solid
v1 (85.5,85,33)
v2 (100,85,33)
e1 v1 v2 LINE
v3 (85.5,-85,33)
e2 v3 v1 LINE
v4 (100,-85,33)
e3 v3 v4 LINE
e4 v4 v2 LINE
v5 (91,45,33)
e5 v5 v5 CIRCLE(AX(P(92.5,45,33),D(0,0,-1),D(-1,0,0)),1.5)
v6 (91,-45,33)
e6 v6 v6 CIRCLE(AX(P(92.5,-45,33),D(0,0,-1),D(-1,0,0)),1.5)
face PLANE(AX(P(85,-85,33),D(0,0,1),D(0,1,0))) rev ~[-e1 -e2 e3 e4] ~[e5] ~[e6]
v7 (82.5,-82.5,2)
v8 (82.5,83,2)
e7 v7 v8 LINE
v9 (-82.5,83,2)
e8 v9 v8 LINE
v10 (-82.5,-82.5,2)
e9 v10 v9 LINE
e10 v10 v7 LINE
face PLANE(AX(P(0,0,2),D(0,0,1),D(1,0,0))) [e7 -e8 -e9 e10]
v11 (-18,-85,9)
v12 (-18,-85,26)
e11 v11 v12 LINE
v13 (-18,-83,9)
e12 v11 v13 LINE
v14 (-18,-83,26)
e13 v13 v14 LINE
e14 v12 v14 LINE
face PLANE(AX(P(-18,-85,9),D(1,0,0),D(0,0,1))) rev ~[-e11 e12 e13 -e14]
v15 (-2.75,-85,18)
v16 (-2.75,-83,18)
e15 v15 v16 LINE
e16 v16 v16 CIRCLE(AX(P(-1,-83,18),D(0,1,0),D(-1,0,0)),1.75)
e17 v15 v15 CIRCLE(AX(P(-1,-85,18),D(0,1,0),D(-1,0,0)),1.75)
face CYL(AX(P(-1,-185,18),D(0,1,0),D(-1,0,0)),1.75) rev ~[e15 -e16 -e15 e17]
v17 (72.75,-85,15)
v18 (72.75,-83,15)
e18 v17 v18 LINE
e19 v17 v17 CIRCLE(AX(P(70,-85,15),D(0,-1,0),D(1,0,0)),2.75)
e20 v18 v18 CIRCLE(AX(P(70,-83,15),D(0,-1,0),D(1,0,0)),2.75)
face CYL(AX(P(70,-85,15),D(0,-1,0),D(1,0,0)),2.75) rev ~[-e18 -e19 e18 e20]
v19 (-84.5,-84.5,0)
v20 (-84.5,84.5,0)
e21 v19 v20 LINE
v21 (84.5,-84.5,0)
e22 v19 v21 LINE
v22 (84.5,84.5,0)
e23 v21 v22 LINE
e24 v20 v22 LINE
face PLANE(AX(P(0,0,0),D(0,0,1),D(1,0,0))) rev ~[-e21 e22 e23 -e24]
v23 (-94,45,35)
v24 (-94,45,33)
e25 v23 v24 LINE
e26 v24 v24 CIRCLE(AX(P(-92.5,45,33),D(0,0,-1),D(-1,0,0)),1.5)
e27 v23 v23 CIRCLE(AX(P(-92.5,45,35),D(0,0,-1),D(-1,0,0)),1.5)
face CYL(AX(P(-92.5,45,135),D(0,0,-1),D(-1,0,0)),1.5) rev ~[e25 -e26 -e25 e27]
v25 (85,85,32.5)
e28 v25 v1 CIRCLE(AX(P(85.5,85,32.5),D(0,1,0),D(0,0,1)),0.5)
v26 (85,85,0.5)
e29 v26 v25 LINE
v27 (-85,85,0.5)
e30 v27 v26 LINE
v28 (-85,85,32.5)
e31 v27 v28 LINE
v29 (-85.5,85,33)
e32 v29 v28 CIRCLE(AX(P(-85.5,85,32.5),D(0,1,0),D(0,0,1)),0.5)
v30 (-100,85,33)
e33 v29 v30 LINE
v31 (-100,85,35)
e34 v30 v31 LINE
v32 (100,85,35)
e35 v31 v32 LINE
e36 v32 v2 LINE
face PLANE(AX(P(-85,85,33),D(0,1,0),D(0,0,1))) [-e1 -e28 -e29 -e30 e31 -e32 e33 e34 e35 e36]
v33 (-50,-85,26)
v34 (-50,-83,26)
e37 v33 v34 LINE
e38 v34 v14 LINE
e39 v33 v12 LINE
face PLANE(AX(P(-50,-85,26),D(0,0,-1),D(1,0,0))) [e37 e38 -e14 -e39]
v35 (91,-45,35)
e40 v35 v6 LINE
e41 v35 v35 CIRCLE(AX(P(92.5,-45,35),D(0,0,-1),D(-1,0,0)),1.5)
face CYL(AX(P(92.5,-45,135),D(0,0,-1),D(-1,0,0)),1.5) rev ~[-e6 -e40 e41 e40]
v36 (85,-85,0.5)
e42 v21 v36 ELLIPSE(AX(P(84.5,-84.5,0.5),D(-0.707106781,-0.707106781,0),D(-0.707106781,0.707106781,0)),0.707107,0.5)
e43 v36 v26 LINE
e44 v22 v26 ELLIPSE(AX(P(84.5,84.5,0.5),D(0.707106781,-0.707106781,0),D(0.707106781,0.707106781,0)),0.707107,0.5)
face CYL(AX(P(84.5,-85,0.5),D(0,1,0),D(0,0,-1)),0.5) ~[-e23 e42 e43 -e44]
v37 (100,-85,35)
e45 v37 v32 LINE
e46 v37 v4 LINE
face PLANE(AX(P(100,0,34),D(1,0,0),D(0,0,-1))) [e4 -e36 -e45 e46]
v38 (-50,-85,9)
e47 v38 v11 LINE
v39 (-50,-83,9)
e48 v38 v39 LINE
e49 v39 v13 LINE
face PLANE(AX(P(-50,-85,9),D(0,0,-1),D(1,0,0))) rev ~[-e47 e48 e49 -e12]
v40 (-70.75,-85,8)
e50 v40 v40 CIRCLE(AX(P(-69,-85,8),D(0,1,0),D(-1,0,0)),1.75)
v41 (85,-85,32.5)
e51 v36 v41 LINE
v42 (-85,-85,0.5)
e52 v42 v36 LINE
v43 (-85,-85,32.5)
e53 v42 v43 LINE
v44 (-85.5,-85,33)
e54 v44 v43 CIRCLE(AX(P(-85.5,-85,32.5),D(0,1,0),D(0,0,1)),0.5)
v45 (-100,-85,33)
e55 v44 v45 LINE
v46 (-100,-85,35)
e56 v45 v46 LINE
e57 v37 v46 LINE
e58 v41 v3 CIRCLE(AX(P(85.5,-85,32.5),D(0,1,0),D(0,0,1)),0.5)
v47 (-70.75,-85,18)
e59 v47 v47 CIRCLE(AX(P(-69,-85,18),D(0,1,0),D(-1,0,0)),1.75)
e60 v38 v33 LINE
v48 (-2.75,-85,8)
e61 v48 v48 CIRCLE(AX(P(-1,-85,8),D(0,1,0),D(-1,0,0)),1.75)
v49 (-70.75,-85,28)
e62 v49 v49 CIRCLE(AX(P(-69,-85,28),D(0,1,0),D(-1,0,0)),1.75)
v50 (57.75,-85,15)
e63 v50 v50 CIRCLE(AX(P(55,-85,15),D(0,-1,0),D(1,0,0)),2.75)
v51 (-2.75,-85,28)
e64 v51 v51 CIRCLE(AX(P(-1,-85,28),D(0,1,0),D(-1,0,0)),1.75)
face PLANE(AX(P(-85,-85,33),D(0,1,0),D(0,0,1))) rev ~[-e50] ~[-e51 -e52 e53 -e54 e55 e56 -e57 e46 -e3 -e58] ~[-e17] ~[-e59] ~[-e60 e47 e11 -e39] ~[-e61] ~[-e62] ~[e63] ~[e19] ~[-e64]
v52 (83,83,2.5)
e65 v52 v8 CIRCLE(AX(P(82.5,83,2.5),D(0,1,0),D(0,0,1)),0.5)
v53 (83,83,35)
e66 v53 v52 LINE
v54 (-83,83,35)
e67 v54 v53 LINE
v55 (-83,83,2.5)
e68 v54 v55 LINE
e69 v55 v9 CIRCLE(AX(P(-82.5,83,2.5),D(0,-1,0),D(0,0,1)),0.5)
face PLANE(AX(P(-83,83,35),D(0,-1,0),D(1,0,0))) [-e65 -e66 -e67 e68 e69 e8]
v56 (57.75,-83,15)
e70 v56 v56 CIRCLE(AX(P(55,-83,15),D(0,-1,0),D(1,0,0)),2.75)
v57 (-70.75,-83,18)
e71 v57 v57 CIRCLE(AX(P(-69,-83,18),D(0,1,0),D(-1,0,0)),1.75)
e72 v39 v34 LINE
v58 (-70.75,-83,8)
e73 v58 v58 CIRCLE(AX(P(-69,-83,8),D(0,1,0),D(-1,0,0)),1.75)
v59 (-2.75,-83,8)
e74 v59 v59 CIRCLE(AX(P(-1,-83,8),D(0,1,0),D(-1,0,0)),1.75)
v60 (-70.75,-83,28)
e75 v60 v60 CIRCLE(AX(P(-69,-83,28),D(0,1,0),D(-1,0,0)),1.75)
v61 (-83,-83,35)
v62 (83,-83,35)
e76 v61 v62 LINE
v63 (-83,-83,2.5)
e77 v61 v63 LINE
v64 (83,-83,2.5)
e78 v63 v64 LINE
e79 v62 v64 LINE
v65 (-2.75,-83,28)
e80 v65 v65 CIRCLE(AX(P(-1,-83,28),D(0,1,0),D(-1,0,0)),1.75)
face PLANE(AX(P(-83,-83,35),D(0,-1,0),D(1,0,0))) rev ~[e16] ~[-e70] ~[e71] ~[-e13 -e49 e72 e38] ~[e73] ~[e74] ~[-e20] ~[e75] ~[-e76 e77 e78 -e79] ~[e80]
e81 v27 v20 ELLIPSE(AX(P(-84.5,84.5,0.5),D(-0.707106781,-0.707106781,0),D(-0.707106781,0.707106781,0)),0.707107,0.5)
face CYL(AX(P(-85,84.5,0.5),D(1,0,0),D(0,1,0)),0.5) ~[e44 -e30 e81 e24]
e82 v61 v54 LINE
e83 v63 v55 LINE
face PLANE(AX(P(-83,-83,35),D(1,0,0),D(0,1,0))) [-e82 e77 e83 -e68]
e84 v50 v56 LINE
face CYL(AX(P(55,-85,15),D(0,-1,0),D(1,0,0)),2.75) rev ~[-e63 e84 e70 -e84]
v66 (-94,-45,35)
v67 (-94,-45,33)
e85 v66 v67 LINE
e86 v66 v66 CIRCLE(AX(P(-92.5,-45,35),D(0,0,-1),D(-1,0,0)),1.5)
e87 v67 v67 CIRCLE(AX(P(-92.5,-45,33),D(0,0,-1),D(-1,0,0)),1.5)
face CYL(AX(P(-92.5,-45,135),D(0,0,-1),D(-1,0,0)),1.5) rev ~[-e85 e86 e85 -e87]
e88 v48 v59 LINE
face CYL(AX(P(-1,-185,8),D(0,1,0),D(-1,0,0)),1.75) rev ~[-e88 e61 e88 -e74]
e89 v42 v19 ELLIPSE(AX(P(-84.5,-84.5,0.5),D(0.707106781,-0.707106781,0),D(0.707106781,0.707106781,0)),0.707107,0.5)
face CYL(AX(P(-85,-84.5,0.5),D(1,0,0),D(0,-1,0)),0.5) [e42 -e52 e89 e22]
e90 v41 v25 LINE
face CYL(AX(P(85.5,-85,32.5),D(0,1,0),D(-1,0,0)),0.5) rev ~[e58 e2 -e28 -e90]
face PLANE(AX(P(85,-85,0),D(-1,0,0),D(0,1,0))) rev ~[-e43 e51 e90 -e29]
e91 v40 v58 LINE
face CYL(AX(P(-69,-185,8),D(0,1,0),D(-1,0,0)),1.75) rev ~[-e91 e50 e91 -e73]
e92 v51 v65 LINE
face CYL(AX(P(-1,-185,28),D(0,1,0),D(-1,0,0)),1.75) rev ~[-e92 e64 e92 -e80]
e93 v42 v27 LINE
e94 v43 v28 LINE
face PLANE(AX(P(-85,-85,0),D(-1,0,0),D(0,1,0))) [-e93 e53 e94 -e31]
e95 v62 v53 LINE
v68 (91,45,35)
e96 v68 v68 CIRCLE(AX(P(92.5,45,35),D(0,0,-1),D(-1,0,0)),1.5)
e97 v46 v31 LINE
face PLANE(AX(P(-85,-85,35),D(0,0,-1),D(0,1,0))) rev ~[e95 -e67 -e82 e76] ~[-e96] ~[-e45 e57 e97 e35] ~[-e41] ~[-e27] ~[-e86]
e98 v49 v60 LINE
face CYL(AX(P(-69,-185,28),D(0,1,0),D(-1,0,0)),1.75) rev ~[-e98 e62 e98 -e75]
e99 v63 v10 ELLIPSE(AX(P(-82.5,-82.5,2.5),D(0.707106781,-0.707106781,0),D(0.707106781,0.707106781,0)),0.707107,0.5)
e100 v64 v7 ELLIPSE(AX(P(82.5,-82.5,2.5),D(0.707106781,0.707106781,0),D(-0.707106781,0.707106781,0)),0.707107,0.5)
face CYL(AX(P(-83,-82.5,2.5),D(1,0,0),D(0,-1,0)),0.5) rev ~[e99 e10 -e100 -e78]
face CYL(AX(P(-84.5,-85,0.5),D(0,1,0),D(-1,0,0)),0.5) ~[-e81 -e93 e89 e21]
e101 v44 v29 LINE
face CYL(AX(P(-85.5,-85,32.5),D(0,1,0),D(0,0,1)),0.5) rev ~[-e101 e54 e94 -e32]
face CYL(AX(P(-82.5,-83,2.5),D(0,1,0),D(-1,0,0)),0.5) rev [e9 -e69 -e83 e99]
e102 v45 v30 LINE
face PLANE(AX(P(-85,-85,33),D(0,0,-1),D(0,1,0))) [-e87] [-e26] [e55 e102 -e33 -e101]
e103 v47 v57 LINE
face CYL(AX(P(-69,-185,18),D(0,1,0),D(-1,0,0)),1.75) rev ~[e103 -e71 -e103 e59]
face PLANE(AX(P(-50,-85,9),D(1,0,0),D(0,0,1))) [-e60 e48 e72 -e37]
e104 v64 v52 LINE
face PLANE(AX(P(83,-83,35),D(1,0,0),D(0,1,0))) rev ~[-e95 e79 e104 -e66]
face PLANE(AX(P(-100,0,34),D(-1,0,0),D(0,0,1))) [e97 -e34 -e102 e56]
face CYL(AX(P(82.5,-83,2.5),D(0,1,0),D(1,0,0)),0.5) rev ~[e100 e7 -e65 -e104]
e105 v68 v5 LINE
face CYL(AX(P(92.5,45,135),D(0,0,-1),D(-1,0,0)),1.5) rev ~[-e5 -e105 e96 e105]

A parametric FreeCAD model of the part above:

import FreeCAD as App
import Part
import Sketcher


def edges_at(feature, points):
    """Names of the edges that pass closest to the given points."""
    edges = feature.Shape.Edges
    near = lambda p: min(range(len(edges)), key=lambda i: edges[i].distToShape(Part.Vertex(*p))[0])
    return sorted({f"Edge{near(p) + 1}" for p in points})

doc = App.newDocument("Part")
params = doc.addObject("Spreadsheet::Sheet", "Params")
for row, (alias, value) in enumerate([
    ("sketch1_width", "170 mm"),
    ("pad1_length", "35 mm"),
    ("sketch2_width", "166 mm"),
    ("pocket1_length", "33 mm"),
    ("sketch3_width", "170 mm"),
    ("sketch3_height", "2 mm"),
    ("pad2_length", "15 mm"),
    ("sketch4_width", "170 mm"),
    ("sketch4_height", "2 mm"),
    ("pad3_length", "15 mm"),
    ("sketch5_diameter", "3 mm"),
    ("hole_diameter", "3 mm"),
    ("hole_depth", "100 mm"),
    ("sketch6_diameter", "5.5 mm"),
    ("sketch6_width", "32 mm"),
    ("sketch6_height", "17 mm"),
    ("pocket2_length", "15 mm"),
    ("fillet_radius", "0.5 mm"),
    ("sketch7_diameter", "3.5 mm"),
    ("hole2_diameter", "3.5 mm"),
    ("hole2_depth", "100 mm"),
], start=1):
    params.set(f"A{row}", alias)
    params.set(f"B{row}", "=" + value)
    params.setAlias(f"B{row}", alias)

body = doc.addObject("PartDesign::Body", "Body")

sketch1 = body.newObject("Sketcher::SketchObject", "Sketch")
sketch1.AttachmentSupport = (doc.getObject("XY_Plane"), [""])
sketch1.MapMode = "FlatFace"
sketch1.addGeometry([
    Part.LineSegment(App.Vector(-85, 85, 0), App.Vector(-85, -85, 0)),
    Part.LineSegment(App.Vector(-85, -85, 0), App.Vector(85, -85, 0)),
    Part.LineSegment(App.Vector(85, -85, 0), App.Vector(85, 85, 0)),
    Part.LineSegment(App.Vector(85, 85, 0), App.Vector(-85, 85, 0)),
], False)
sketch1.addConstraint([
    Sketcher.Constraint("Coincident", 0, 2, 1, 1),
    Sketcher.Constraint("Coincident", 1, 2, 2, 1),
    Sketcher.Constraint("Coincident", 2, 2, 3, 1),
    Sketcher.Constraint("Coincident", 3, 2, 0, 1),
    Sketcher.Constraint("Vertical", 0),
    Sketcher.Constraint("Horizontal", 1),
    Sketcher.Constraint("Vertical", 2),
    Sketcher.Constraint("Horizontal", 3),
    Sketcher.Constraint("Symmetric", 0, 2, 2, 2, -1, 1),
    Sketcher.Constraint("Equal", 3, 0),
    Sketcher.Constraint("DistanceX", 1, 1, 1, 2, 170.0),
])
sketch1.setExpression("Constraints[10]", "Params.sketch1_width")
pad1 = body.newObject("PartDesign::Pad", "Pad")
pad1.Profile = sketch1
pad1.setExpression("Length", "Params.pad1_length")

sketch2 = body.newObject("Sketcher::SketchObject", "Sketch001")
sketch2.AttachmentSupport = (doc.getObject("XY_Plane"), [""])
sketch2.MapMode = "FlatFace"
sketch2.AttachmentOffset = App.Placement(App.Vector(0, 0, 35), App.Rotation())
sketch2.addGeometry([
    Part.LineSegment(App.Vector(-83, 83, 0), App.Vector(-83, -83, 0)),
    Part.LineSegment(App.Vector(-83, -83, 0), App.Vector(83, -83, 0)),
    Part.LineSegment(App.Vector(83, -83, 0), App.Vector(83, 83, 0)),
    Part.LineSegment(App.Vector(83, 83, 0), App.Vector(-83, 83, 0)),
], False)
sketch2.addConstraint([
    Sketcher.Constraint("Coincident", 0, 2, 1, 1),
    Sketcher.Constraint("Coincident", 1, 2, 2, 1),
    Sketcher.Constraint("Coincident", 2, 2, 3, 1),
    Sketcher.Constraint("Coincident", 3, 2, 0, 1),
    Sketcher.Constraint("Vertical", 0),
    Sketcher.Constraint("Horizontal", 1),
    Sketcher.Constraint("Vertical", 2),
    Sketcher.Constraint("Horizontal", 3),
    Sketcher.Constraint("Symmetric", 0, 2, 2, 2, -1, 1),
    Sketcher.Constraint("Equal", 3, 0),
    Sketcher.Constraint("DistanceX", 1, 1, 1, 2, 166.0),
])
sketch2.setExpression("Constraints[10]", "Params.sketch2_width")
pocket1 = body.newObject("PartDesign::Pocket", "Pocket")
pocket1.Profile = sketch2
pocket1.setExpression("Length", "Params.pocket1_length")

sketch3 = body.newObject("Sketcher::SketchObject", "Sketch002")
sketch3.AttachmentSupport = (doc.getObject("YZ_Plane"), [""])
sketch3.MapMode = "FlatFace"
sketch3.AttachmentOffset = App.Placement(App.Vector(0, 0, 85), App.Rotation())
sketch3.addGeometry([
    Part.LineSegment(App.Vector(85, 35, 0), App.Vector(-85, 35, 0)),
    Part.LineSegment(App.Vector(-85, 35, 0), App.Vector(-85, 33, 0)),
    Part.LineSegment(App.Vector(-85, 33, 0), App.Vector(85, 33, 0)),
    Part.LineSegment(App.Vector(85, 33, 0), App.Vector(85, 35, 0)),
], False)
sketch3.addConstraint([
    Sketcher.Constraint("Coincident", 0, 2, 1, 1),
    Sketcher.Constraint("Coincident", 1, 2, 2, 1),
    Sketcher.Constraint("Coincident", 2, 2, 3, 1),
    Sketcher.Constraint("Coincident", 3, 2, 0, 1),
    Sketcher.Constraint("Horizontal", 0),
    Sketcher.Constraint("Vertical", 1),
    Sketcher.Constraint("Horizontal", 2),
    Sketcher.Constraint("Vertical", 3),
    Sketcher.Constraint("DistanceX", 0, 2, 0, 1, 170.0),
    Sketcher.Constraint("DistanceY", 1, 2, 1, 1, 2.0),
    Sketcher.Constraint("DistanceX", 0, 2, -1, 1, 85.0),
    Sketcher.Constraint("DistanceY", -1, 1, 0, 2, 35.0),
])
sketch3.setExpression("Constraints[8]", "Params.sketch3_width")
sketch3.setExpression("Constraints[9]", "Params.sketch3_height")
pad2 = body.newObject("PartDesign::Pad", "Pad001")
pad2.Profile = sketch3
pad2.setExpression("Length", "Params.pad2_length")

sketch4 = body.newObject("Sketcher::SketchObject", "Sketch003")
sketch4.AttachmentSupport = (doc.getObject("YZ_Plane"), [""])
sketch4.MapMode = "FlatFace"
sketch4.AttachmentOffset = App.Placement(App.Vector(0, 0, -85), App.Rotation())
sketch4.addGeometry([
    Part.LineSegment(App.Vector(85, 33, 0), App.Vector(-85, 33, 0)),
    Part.LineSegment(App.Vector(-85, 33, 0), App.Vector(-85, 35, 0)),
    Part.LineSegment(App.Vector(-85, 35, 0), App.Vector(85, 35, 0)),
    Part.LineSegment(App.Vector(85, 35, 0), App.Vector(85, 33, 0)),
], False)
sketch4.addConstraint([
    Sketcher.Constraint("Coincident", 0, 2, 1, 1),
    Sketcher.Constraint("Coincident", 1, 2, 2, 1),
    Sketcher.Constraint("Coincident", 2, 2, 3, 1),
    Sketcher.Constraint("Coincident", 3, 2, 0, 1),
    Sketcher.Constraint("Horizontal", 0),
    Sketcher.Constraint("Vertical", 1),
    Sketcher.Constraint("Horizontal", 2),
    Sketcher.Constraint("Vertical", 3),
    Sketcher.Constraint("DistanceX", 0, 2, 0, 1, 170.0),
    Sketcher.Constraint("DistanceY", 1, 1, 1, 2, 2.0),
    Sketcher.Constraint("DistanceX", 0, 2, -1, 1, 85.0),
    Sketcher.Constraint("DistanceY", -1, 1, 0, 2, 33.0),
])
sketch4.setExpression("Constraints[8]", "Params.sketch4_width")
sketch4.setExpression("Constraints[9]", "Params.sketch4_height")
pad3 = body.newObject("PartDesign::Pad", "Pad002")
pad3.Profile = sketch4
pad3.setExpression("Length", "Params.pad3_length")
pad3.Reversed = True

sketch5 = body.newObject("Sketcher::SketchObject", "Sketch004")
sketch5.AttachmentSupport = (doc.getObject("XY_Plane"), [""])
sketch5.MapMode = "FlatFace"
sketch5.AttachmentOffset = App.Placement(App.Vector(0, 0, 35), App.Rotation())
sketch5.addGeometry([
    Part.Circle(App.Vector(-92.5, 45, 0), App.Vector(0, 0, 1), 1.5),
    Part.Circle(App.Vector(-92.5, -45, 0), App.Vector(0, 0, 1), 1.5),
    Part.Circle(App.Vector(115, -45, 0), App.Vector(0, 0, 1), 1.5),
    Part.Circle(App.Vector(115, 45, 0), App.Vector(0, 0, 1), 1.5),
    Part.Circle(App.Vector(92.5, 45, 0), App.Vector(0, 0, 1), 1.5),
    Part.Circle(App.Vector(92.5, -45, 0), App.Vector(0, 0, 1), 1.5),
], False)
sketch5.addConstraint([
    Sketcher.Constraint("Equal", 0, 1),
    Sketcher.Constraint("Equal", 1, 2),
    Sketcher.Constraint("Equal", 2, 3),
    Sketcher.Constraint("Equal", 3, 4),
    Sketcher.Constraint("Equal", 4, 5),
    Sketcher.Constraint("Symmetric", 1, 3, 4, 3, -1, 1),
    Sketcher.Constraint("Symmetric", 0, 3, 5, 3, -1, 1),
    Sketcher.Constraint("Symmetric", 0, 3, 4, 3, -2),
    Sketcher.Constraint("Symmetric", 2, 3, 3, 3, -1),
    Sketcher.Constraint("Horizontal", 1, 3, 2, 3),
    Sketcher.Constraint("Diameter", 0, 3.0),
    Sketcher.Constraint("DistanceY", -1, 1, 0, 3, 45.0),
    Sketcher.Constraint("DistanceX", -1, 1, 2, 3, 115.0),
    Sketcher.Constraint("DistanceX", 0, 3, 4, 3, 185.0),
])
sketch5.setExpression("Constraints[10]", "Params.sketch5_diameter")
doc.recompute()
hole = body.newObject("PartDesign::Hole", "Hole")
hole.Profile = sketch5
hole.ThreadType = "None"
hole.setExpression("Diameter", "Params.hole_diameter")
hole.DepthType = "Dimension"
hole.setExpression("Depth", "Params.hole_depth")
hole.DrillPoint = "Angled"
hole.DrillPointAngle = 118

sketch6 = body.newObject("Sketcher::SketchObject", "Sketch005")
sketch6.AttachmentSupport = (doc.getObject("XZ_Plane"), [""])
sketch6.MapMode = "FlatFace"
sketch6.AttachmentOffset = App.Placement(App.Vector(0, 0, 85), App.Rotation())
sketch6.addGeometry([
    Part.Circle(App.Vector(55, 15, 0), App.Vector(0, 0, 1), 2.75),
    Part.Circle(App.Vector(70, 15, 0), App.Vector(0, 0, 1), 2.75),
    Part.LineSegment(App.Vector(-50, 26, 0), App.Vector(-50, 9, 0)),
    Part.LineSegment(App.Vector(-50, 9, 0), App.Vector(-18, 9, 0)),
    Part.LineSegment(App.Vector(-18, 9, 0), App.Vector(-18, 26, 0)),
    Part.LineSegment(App.Vector(-18, 26, 0), App.Vector(-50, 26, 0)),
], False)
sketch6.addConstraint([
    Sketcher.Constraint("Coincident", 2, 2, 3, 1),
    Sketcher.Constraint("Coincident", 3, 2, 4, 1),
    Sketcher.Constraint("Coincident", 4, 2, 5, 1),
    Sketcher.Constraint("Coincident", 5, 2, 2, 1),
    Sketcher.Constraint("Vertical", 2),
    Sketcher.Constraint("Horizontal", 3),
    Sketcher.Constraint("Vertical", 4),
    Sketcher.Constraint("Horizontal", 5),
    Sketcher.Constraint("Equal", 0, 1),
    Sketcher.Constraint("Horizontal", 0, 3, 1, 3),
    Sketcher.Constraint("Diameter", 0, 5.5),
    Sketcher.Constraint("DistanceX", 3, 1, 3, 2, 32.0),
    Sketcher.Constraint("DistanceY", 2, 2, 2, 1, 17.0),
    Sketcher.Constraint("DistanceX", -1, 1, 0, 3, 55.0),
    Sketcher.Constraint("DistanceY", -1, 1, 0, 3, 15.0),
    Sketcher.Constraint("DistanceX", -1, 1, 1, 3, 70.0),
    Sketcher.Constraint("DistanceX", 2, 2, -1, 1, 50.0),
    Sketcher.Constraint("DistanceY", -1, 1, 2, 2, 9.0),
])
sketch6.setExpression("Constraints[10]", "Params.sketch6_diameter")
sketch6.setExpression("Constraints[11]", "Params.sketch6_width")
sketch6.setExpression("Constraints[12]", "Params.sketch6_height")
pocket2 = body.newObject("PartDesign::Pocket", "Pocket001")
pocket2.Profile = sketch6
pocket2.setExpression("Length", "Params.pocket2_length")
doc.recompute()

fillet = body.newObject("PartDesign::Fillet", "Fillet")
fillet.Base = (pocket2, edges_at(pocket2, [
    (-83, 0, 2),
    (83, 0, 2),
    (85, 0, 0),
    (85, 0, 33),
    (-85, 0, 0),
    (-85, 0, 33),
    (0, -85, 0),
    (0, 85, 0),
    (0, -83, 2),
]))
fillet.setExpression("Radius", "Params.fillet_radius")

sketch7 = body.newObject("Sketcher::SketchObject", "Sketch006")
sketch7.AttachmentSupport = (doc.getObject("XZ_Plane"), [""])
sketch7.MapMode = "FlatFace"
sketch7.AttachmentOffset = App.Placement(App.Vector(0, 0, 85), App.Rotation())
sketch7.addGeometry([
    Part.Circle(App.Vector(-69, 28, 0), App.Vector(0, 0, 1), 1.75),
    Part.Circle(App.Vector(-1, 28, 0), App.Vector(0, 0, 1), 1.75),
    Part.Circle(App.Vector(-69, 18, 0), App.Vector(0, 0, 1), 1.75),
    Part.Circle(App.Vector(-1, 18, 0), App.Vector(0, 0, 1), 1.75),
    Part.Circle(App.Vector(-69, 8, 0), App.Vector(0, 0, 1), 1.75),
    Part.Circle(App.Vector(-1, 8, 0), App.Vector(0, 0, 1), 1.75),
], False)
sketch7.addConstraint([
    Sketcher.Constraint("Equal", 0, 1),
    Sketcher.Constraint("Equal", 1, 2),
    Sketcher.Constraint("Equal", 2, 3),
    Sketcher.Constraint("Equal", 3, 4),
    Sketcher.Constraint("Equal", 4, 5),
    Sketcher.Constraint("Horizontal", 0, 3, 1, 3),
    Sketcher.Constraint("Horizontal", 2, 3, 3, 3),
    Sketcher.Constraint("Horizontal", 4, 3, 5, 3),
    Sketcher.Constraint("Vertical", 0, 3, 2, 3),
    Sketcher.Constraint("Vertical", 1, 3, 3, 3),
    Sketcher.Constraint("Vertical", 2, 3, 4, 3),
    Sketcher.Constraint("Vertical", 3, 3, 5, 3),
    Sketcher.Constraint("Diameter", 0, 3.5),
    Sketcher.Constraint("DistanceX", 0, 3, -1, 1, 69.0),
    Sketcher.Constraint("DistanceY", -1, 1, 0, 3, 28.0),
    Sketcher.Constraint("DistanceX", 1, 3, -1, 1, 1.0),
    Sketcher.Constraint("DistanceY", -1, 1, 2, 3, 18.0),
    Sketcher.Constraint("DistanceY", -1, 1, 4, 3, 8.0),
])
sketch7.setExpression("Constraints[12]", "Params.sketch7_diameter")
doc.recompute()
hole2 = body.newObject("PartDesign::Hole", "Hole001")
hole2.Profile = sketch7
hole2.ThreadType = "None"
hole2.setExpression("Diameter", "Params.hole2_diameter")
hole2.DepthType = "Dimension"
hole2.setExpression("Depth", "Params.hole2_depth")
hole2.DrillPoint = "Angled"
hole2.DrillPointAngle = 118

doc.recompute()
